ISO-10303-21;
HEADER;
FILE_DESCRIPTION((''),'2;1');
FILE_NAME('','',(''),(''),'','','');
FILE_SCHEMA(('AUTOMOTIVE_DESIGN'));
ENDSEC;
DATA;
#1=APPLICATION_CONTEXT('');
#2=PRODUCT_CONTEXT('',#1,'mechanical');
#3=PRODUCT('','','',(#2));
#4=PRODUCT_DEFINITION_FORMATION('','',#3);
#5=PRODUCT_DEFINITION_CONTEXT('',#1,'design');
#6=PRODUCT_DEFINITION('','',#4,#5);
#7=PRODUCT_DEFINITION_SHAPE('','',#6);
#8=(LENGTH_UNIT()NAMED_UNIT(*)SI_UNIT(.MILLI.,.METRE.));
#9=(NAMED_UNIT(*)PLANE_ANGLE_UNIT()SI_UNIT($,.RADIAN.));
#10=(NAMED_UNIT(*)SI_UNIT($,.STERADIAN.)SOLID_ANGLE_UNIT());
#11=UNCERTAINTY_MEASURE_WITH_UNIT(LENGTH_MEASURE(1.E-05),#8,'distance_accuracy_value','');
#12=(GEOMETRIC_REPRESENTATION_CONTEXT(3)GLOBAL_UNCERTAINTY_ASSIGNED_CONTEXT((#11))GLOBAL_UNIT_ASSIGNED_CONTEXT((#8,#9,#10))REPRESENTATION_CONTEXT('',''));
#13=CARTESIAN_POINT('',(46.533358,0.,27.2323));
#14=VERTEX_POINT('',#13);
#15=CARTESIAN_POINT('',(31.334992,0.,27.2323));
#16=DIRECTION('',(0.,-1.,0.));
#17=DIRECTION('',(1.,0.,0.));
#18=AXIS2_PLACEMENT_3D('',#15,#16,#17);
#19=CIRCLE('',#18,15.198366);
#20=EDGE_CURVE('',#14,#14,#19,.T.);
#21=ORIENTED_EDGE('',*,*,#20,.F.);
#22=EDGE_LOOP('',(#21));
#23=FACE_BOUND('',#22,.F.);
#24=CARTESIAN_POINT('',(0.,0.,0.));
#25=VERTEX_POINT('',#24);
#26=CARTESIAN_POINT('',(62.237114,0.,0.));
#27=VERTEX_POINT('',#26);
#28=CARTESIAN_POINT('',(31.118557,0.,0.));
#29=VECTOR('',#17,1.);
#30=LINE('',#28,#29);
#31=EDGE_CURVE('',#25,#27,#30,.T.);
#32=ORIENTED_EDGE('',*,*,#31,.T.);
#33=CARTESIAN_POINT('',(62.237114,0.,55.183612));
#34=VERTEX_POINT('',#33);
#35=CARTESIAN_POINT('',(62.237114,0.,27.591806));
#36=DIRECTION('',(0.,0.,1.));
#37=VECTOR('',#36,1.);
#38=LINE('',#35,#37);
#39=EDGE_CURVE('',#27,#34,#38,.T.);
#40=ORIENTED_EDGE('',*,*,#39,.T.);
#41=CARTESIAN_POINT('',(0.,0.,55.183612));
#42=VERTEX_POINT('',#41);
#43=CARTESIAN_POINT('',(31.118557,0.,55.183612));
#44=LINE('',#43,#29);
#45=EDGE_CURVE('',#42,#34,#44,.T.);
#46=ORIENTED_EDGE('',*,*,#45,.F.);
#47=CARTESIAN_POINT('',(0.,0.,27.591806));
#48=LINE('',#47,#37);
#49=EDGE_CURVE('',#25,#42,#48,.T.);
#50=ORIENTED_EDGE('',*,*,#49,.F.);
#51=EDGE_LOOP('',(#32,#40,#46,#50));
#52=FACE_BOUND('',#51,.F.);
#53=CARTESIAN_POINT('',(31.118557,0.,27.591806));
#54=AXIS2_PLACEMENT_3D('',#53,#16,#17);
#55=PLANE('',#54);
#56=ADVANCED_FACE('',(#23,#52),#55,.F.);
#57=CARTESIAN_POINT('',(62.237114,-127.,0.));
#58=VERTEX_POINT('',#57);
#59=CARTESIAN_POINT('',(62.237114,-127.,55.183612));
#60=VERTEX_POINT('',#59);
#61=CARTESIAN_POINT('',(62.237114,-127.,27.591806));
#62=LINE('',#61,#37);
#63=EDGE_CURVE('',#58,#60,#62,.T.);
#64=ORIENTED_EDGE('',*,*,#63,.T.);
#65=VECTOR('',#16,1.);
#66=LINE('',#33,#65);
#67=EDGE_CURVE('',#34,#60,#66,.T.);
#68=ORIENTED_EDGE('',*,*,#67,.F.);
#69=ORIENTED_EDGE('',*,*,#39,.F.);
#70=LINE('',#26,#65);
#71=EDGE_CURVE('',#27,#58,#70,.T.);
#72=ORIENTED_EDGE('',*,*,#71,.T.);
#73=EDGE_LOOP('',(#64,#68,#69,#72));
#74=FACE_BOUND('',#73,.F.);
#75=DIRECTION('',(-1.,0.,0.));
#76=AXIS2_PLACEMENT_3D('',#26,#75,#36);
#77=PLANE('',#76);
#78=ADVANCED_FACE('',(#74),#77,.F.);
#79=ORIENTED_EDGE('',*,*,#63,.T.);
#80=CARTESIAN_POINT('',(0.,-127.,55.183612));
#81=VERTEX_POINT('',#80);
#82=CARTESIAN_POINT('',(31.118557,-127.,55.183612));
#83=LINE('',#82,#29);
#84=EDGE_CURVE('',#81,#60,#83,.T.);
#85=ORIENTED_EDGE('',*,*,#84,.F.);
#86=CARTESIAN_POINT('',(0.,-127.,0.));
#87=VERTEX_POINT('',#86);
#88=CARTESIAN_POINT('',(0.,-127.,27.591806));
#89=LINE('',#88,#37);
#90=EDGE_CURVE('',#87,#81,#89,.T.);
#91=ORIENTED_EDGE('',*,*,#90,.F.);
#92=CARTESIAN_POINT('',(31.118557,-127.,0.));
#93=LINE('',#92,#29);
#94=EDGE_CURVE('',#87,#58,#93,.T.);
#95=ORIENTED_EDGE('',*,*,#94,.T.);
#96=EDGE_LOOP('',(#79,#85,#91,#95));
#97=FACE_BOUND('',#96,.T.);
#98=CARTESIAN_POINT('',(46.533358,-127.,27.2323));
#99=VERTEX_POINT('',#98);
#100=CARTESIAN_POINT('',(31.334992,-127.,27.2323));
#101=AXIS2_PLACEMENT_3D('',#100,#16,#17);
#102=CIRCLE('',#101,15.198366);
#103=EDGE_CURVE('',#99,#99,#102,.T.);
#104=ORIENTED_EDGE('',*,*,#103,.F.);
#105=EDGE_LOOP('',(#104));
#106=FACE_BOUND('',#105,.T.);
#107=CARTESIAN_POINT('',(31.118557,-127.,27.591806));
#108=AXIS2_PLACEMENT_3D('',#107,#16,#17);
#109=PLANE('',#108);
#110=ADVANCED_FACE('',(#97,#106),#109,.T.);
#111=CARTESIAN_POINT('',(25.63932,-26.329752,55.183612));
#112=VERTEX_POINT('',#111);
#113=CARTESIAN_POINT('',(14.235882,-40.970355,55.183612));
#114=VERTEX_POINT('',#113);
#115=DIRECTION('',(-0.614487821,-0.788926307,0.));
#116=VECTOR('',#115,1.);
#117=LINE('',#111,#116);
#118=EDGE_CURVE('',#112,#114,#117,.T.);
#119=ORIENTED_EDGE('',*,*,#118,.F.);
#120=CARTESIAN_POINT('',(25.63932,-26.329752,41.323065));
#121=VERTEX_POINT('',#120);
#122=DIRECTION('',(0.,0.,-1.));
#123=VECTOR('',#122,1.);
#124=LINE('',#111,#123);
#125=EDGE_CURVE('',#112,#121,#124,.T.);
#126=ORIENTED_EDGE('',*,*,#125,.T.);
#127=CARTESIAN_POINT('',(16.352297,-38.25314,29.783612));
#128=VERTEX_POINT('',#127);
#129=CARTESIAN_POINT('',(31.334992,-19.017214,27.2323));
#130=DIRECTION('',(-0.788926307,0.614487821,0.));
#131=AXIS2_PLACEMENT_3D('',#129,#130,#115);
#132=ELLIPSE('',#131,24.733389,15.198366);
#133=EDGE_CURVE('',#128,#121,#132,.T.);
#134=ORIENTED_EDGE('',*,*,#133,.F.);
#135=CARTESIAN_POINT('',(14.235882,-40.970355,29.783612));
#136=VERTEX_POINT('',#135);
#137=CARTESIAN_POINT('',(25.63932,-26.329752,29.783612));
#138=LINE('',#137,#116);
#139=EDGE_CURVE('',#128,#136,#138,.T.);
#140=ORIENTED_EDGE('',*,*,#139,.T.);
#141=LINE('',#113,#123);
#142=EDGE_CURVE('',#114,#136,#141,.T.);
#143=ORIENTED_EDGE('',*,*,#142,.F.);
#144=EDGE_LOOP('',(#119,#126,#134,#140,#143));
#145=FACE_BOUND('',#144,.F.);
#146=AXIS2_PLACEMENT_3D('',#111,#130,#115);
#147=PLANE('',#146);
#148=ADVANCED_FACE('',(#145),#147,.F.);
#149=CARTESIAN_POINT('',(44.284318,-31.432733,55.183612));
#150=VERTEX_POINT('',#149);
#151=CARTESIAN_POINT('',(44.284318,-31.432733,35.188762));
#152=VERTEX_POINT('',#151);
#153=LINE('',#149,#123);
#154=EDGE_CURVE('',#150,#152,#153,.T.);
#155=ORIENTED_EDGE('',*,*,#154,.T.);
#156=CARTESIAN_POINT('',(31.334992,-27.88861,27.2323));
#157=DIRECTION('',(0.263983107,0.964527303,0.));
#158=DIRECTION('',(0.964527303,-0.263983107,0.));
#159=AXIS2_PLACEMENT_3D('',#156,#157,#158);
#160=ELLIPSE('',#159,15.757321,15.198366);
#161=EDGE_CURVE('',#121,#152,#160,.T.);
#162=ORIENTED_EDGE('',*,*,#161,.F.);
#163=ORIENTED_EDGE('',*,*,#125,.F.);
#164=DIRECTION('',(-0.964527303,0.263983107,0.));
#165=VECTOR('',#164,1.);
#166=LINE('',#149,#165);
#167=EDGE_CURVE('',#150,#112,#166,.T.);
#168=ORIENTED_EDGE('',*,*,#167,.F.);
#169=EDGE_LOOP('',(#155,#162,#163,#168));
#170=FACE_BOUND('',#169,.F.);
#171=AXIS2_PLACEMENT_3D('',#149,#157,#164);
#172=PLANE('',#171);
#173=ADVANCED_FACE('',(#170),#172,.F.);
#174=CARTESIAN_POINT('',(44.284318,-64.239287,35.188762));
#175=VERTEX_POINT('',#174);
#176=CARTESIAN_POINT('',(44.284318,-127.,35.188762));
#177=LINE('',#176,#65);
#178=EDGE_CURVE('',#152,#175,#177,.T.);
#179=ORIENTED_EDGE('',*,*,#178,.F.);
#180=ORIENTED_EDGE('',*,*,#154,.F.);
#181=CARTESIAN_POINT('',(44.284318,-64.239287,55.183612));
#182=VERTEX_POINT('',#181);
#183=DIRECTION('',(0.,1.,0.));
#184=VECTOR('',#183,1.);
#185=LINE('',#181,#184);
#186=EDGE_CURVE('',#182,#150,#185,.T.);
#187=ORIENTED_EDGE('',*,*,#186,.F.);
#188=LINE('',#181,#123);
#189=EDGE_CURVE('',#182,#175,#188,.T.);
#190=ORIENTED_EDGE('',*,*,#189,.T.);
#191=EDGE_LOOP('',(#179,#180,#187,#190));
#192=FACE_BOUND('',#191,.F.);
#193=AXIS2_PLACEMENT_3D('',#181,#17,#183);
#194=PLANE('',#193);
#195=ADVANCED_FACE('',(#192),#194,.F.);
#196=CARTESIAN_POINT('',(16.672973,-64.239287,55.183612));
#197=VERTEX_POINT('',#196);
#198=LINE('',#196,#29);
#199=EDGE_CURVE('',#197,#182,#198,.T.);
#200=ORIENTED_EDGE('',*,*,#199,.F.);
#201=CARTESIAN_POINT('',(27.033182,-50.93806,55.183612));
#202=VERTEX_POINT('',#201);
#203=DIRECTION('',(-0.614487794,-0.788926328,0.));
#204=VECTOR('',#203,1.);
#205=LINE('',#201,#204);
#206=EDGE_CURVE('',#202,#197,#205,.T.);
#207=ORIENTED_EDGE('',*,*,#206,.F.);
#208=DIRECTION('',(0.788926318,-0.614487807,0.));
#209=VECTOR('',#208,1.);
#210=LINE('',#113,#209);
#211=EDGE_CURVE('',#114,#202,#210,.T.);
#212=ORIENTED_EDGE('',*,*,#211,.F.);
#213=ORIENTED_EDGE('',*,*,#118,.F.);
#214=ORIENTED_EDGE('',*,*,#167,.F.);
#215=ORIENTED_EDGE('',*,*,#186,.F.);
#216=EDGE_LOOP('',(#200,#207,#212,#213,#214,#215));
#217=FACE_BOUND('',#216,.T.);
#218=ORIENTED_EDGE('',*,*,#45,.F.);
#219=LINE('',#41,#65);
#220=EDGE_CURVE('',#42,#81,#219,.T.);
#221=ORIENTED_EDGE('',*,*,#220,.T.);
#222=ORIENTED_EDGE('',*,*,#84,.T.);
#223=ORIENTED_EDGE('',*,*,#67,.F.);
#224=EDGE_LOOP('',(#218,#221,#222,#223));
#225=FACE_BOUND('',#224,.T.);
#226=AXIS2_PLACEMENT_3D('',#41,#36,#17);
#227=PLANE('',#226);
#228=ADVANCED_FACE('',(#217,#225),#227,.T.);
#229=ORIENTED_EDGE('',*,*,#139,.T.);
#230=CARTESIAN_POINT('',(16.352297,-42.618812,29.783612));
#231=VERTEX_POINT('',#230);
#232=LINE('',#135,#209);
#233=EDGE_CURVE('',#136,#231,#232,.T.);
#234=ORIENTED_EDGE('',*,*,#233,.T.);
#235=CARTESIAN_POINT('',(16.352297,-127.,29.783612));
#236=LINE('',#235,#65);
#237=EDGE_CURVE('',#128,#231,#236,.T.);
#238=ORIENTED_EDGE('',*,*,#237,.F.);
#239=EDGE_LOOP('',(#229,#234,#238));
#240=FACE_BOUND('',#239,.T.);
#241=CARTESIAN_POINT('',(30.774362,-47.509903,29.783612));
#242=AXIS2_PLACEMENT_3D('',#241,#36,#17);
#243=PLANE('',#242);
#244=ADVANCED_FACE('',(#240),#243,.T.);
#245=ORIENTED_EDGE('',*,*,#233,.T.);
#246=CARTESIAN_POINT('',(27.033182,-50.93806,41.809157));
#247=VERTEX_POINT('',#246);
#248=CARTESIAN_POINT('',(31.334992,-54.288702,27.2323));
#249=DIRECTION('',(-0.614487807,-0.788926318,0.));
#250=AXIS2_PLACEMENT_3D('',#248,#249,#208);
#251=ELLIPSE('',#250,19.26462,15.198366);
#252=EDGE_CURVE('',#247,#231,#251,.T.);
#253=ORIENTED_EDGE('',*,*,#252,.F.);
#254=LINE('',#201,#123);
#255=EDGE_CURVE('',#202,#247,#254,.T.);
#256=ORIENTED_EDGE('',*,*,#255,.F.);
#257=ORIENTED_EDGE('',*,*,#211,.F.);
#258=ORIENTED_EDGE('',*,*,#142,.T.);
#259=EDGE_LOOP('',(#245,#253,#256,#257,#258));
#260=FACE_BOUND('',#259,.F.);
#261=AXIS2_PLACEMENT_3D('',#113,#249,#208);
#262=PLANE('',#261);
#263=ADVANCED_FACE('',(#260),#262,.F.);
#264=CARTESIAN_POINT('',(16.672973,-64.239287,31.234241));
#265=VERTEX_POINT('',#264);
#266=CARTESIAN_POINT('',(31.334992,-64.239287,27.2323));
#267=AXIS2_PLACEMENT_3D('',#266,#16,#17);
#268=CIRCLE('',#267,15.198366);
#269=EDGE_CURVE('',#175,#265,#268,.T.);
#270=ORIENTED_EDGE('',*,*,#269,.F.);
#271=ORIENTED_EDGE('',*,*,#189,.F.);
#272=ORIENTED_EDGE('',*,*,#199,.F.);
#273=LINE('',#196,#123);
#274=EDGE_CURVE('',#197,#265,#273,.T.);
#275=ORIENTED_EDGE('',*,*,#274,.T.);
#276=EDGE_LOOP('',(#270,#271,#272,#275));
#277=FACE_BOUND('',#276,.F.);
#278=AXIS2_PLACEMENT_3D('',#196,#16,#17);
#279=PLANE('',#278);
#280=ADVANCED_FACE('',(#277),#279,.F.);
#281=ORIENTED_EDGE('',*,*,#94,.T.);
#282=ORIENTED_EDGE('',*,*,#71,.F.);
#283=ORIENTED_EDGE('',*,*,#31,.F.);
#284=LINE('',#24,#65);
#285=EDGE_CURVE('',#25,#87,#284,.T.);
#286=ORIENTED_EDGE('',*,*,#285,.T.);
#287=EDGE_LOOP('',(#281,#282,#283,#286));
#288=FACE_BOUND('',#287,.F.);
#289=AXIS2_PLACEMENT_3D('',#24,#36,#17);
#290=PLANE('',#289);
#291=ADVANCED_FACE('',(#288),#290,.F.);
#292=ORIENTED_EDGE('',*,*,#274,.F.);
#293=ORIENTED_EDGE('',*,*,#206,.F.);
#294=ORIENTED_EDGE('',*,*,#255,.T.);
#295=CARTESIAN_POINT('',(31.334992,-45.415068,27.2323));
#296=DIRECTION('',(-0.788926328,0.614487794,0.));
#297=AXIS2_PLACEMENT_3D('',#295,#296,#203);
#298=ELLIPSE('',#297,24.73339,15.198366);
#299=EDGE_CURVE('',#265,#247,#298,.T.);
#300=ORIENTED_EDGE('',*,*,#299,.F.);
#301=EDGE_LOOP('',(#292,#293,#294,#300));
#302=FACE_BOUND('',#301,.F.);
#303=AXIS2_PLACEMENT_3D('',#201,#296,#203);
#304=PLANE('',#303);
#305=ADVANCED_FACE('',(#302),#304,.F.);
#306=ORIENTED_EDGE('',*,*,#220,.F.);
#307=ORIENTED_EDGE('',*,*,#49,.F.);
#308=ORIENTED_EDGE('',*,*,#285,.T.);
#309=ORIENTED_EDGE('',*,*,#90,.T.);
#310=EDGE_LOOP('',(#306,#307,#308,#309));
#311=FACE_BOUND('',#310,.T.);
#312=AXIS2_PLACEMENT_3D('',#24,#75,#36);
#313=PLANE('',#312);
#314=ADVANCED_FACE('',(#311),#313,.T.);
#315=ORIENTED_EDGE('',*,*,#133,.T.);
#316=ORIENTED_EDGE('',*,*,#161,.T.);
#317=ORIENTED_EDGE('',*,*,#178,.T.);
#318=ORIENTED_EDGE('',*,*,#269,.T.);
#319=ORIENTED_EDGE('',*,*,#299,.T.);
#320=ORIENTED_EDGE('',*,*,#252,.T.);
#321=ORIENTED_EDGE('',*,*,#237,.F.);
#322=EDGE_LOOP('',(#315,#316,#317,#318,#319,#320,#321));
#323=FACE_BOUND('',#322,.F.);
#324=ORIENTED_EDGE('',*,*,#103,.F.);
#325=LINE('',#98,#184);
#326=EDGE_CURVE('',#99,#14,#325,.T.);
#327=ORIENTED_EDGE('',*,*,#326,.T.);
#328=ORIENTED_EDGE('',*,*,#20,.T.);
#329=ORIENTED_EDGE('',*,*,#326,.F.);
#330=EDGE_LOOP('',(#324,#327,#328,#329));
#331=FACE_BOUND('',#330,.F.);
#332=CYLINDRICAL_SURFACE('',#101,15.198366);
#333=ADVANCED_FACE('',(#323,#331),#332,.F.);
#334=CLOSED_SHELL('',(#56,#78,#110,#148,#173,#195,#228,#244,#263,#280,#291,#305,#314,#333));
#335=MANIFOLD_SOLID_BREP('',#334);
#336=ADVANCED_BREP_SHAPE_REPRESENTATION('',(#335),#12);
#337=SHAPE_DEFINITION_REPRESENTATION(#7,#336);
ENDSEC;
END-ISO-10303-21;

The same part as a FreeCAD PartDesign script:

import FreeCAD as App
import Part
import Sketcher

doc = App.newDocument("Part")
params = doc.addObject("Spreadsheet::Sheet", "Params")
for row, (alias, value) in enumerate([
    ("pad1_length", "5 in"),
    ("pocket1_length", "5 in"),
    ("pocket2_length", "1 in"),
], start=1):
    params.set(f"A{row}", alias)
    params.set(f"B{row}", "=" + value)
    params.setAlias(f"B{row}", alias)

body = doc.addObject("PartDesign::Body", "Body")

sketch1 = body.newObject("Sketcher::SketchObject", "Sketch")
sketch1.AttachmentSupport = (doc.getObject("XZ_Plane"), [""])
sketch1.MapMode = "FlatFace"
sketch1.addGeometry([
    Part.LineSegment(App.Vector(0, 55.183612, 0), App.Vector(0, 0, 0)),
    Part.LineSegment(App.Vector(0, 0, 0), App.Vector(62.237114, 0, 0)),
    Part.LineSegment(App.Vector(62.237114, 0, 0), App.Vector(62.237114, 55.183612, 0)),
    Part.LineSegment(App.Vector(62.237114, 55.183612, 0), App.Vector(0, 55.183612, 0)),
], False)
sketch1.addConstraint([
    Sketcher.Constraint("Coincident", 0, 2, 1, 1),
    Sketcher.Constraint("Coincident", 1, 2, 2, 1),
    Sketcher.Constraint("Coincident", 2, 2, 3, 1),
    Sketcher.Constraint("Coincident", 3, 2, 0, 1),
    Sketcher.Constraint("Vertical", 0),
    Sketcher.Constraint("Horizontal", 1),
    Sketcher.Constraint("Vertical", 2),
    Sketcher.Constraint("Horizontal", 3),
    Sketcher.Constraint("Coincident", 0, 2, -1, 1),
    Sketcher.Constraint("DistanceY", 0, 2, 0, 1, 55.183612),
    Sketcher.Constraint("DistanceX", 1, 1, 1, 2, 62.237114),
])
pad1 = body.newObject("PartDesign::Pad", "Pad")
pad1.Profile = sketch1
pad1.setExpression("Length", "Params.pad1_length")

sketch2 = body.newObject("Sketcher::SketchObject", "Sketch001")
sketch2.AttachmentSupport = (doc.getObject("XZ_Plane"), [""])
sketch2.MapMode = "FlatFace"
sketch2.AttachmentOffset = App.Placement(App.Vector(0, 0, 5 * 25.4), App.Rotation())
sketch2.addGeometry(Part.Circle(App.Vector(31.334992, 27.2323, 0), App.Vector(0, 0, 1), 15.198366), False)
sketch2.addConstraint([
    Sketcher.Constraint("Diameter", 0, 30.396732),
    Sketcher.Constraint("DistanceY", -1, 1, 0, 3, 27.2323),
    Sketcher.Constraint("DistanceX", -1, 1, 0, 3, 31.334992),
])
pocket1 = body.newObject("PartDesign::Pocket", "Pocket")
pocket1.Profile = sketch2
pocket1.setExpression("Length", "Params.pocket1_length")

sketch3 = body.newObject("Sketcher::SketchObject", "Sketch002")
sketch3.AttachmentSupport = (doc.getObject("XY_Plane"), [""])
sketch3.MapMode = "FlatFace"
sketch3.AttachmentOffset = App.Placement(App.Vector(0, 0, 55.183612), App.Rotation())
sketch3.addGeometry([
    Part.LineSegment(App.Vector(44.284318, -31.432733, 0), App.Vector(25.63932, -26.329752, 0)),
    Part.LineSegment(App.Vector(25.63932, -26.329752, 0), App.Vector(14.235882, -40.970355, 0)),
    Part.LineSegment(App.Vector(14.235882, -40.970355, 0), App.Vector(27.033182, -50.93806, 0)),
    Part.LineSegment(App.Vector(27.033182, -50.93806, 0), App.Vector(16.672973, -64.239287, 0)),
    Part.LineSegment(App.Vector(16.672973, -64.239287, 0), App.Vector(44.284318, -64.239287, 0)),
    Part.LineSegment(App.Vector(44.284318, -64.239287, 0), App.Vector(44.284318, -31.432733, 0)),
], False)
sketch3.addConstraint([
    Sketcher.Constraint("Coincident", 0, 2, 1, 1),
    Sketcher.Constraint("Coincident", 1, 2, 2, 1),
    Sketcher.Constraint("Coincident", 2, 2, 3, 1),
    Sketcher.Constraint("Coincident", 3, 2, 4, 1),
    Sketcher.Constraint("Coincident", 4, 2, 5, 1),
    Sketcher.Constraint("Coincident", 5, 2, 0, 1),
    Sketcher.Constraint("Horizontal", 4),
    Sketcher.Constraint("Vertical", 5),
    Sketcher.Constraint("Perpendicular", 1, 2),
    Sketcher.Constraint("Perpendicular", 2, 3),
    Sketcher.Constraint("DistanceX", 1, 2, 2, 2, 12.7973),
    Sketcher.Constraint("Distance", 0, 19.33071),
    Sketcher.Constraint("Distance", 1, 18.557631),
    Sketcher.Constraint("Distance", 2, 16.22116),
    Sketcher.Constraint("Distance", 3, 16.85991),
    Sketcher.Constraint("DistanceX", 4, 1, 4, 2, 27.611345),
    Sketcher.Constraint("DistanceX", -1, 1, 0, 2, 25.63932),
    Sketcher.Constraint("DistanceY", 0, 2, -1, 1, 26.329752),
])
pocket2 = body.newObject("PartDesign::Pocket", "Pocket001")
pocket2.Profile = sketch3
pocket2.setExpression("Length", "Params.pocket2_length")

doc.recompute()
